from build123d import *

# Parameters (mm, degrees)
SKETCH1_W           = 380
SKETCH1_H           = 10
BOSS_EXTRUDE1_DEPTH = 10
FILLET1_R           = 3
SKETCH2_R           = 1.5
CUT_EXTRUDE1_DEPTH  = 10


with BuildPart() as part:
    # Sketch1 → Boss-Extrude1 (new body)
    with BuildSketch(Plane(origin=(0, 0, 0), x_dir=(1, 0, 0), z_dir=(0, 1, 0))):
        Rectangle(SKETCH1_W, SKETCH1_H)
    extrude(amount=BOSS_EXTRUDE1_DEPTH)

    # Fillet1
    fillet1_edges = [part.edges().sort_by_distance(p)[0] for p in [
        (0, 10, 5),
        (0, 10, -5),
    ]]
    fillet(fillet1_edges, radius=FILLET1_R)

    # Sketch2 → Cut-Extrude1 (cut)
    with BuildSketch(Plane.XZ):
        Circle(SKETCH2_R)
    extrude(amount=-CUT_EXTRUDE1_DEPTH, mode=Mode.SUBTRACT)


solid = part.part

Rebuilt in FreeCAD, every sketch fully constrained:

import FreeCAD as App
import Part
import Sketcher

V = App.Vector


def edges_at(feature, points):
    """Names of the edges that pass closest to the given points."""
    edges = feature.Shape.Edges
    near = lambda p: min(range(len(edges)), key=lambda i: edges[i].distToShape(Part.Vertex(*p))[0])
    return sorted({f"Edge{near(p) + 1}" for p in points})


def add_polygon(sketch, points):
    """Adds a closed chain of lines whose ends are joined by coincident constraints."""
    first, n = sketch.GeometryCount, len(points)
    for a, b in zip(points, points[1:] + points[:1]):
        sketch.addGeometry(Part.LineSegment(App.Vector(*a, 0), App.Vector(*b, 0)), False)
    for i in range(n):
        sketch.addConstraint(Sketcher.Constraint("Coincident", first + i, 2, first + (i + 1) % n, 1))

doc = App.newDocument("Part")
params = doc.addObject("Spreadsheet::Sheet", "Params")
for row, (alias, value) in enumerate([
    ("sketch1_width", "380 mm"),
    ("sketch1_height", "10 mm"),
    ("pad1_length", "10 mm"),
    ("fillet_radius", "3 mm"),
    ("sketch2_diameter", "3 mm"),
    ("pocket1_length", "10 mm"),
], start=1):
    params.set(f"A{row}", alias)
    params.set(f"B{row}", "=" + value)
    params.setAlias(f"B{row}", alias)

body = doc.addObject("PartDesign::Body", "Body")

# Sketch on XZ plane
sketch1 = doc.addObject("Sketcher::SketchObject", "Sketch")
body.addObject(sketch1)
sketch1.AttachmentSupport = (doc.XZ_Plane, [""])
sketch1.MapMode = "FlatFace"
add_polygon(sketch1, [(-190, -5), (-190, 5), (190, 5), (190, -5)])  # lines 0-3
sketch1.addConstraint([
    Sketcher.Constraint("Vertical", 0),
    Sketcher.Constraint("Horizontal", 1),
    Sketcher.Constraint("Vertical", 2),
    Sketcher.Constraint("Horizontal", 3),
    Sketcher.Constraint("Symmetric", 0, 2, 2, 2, -1, 1),
    Sketcher.Constraint("DistanceX", 1, 1, 1, 2, 380.0),
    Sketcher.Constraint("DistanceY", 0, 1, 0, 2, 10.0),
])
sketch1.setExpression("Constraints[9]", "Params.sketch1_width")
sketch1.setExpression("Constraints[10]", "Params.sketch1_height")
pad1 = doc.addObject("PartDesign::Pad", "Pad")
body.addObject(pad1)
pad1.Profile = sketch1
pad1.setExpression("Length", "Params.pad1_length")
pad1.Reversed = True
doc.recompute()

fillet = doc.addObject("PartDesign::Fillet", "Fillet")
body.addObject(fillet)
fillet.Base = (pad1, edges_at(pad1, [(0, 10, 5), (0, 10, -5)]))
fillet.setExpression("Radius", "Params.fillet_radius")

# Sketch on XZ plane
sketch2 = doc.addObject("Sketcher::SketchObject", "Sketch001")
body.addObject(sketch2)
sketch2.AttachmentSupport = (doc.XZ_Plane, [""])
sketch2.MapMode = "FlatFace"
sketch2.addGeometry(Part.Circle(V(0, 0, 0), V(0, 0, 1), 1.5), False)
sketch2.addConstraint([
    Sketcher.Constraint("Coincident", 0, 3, -1, 1),
    Sketcher.Constraint("Diameter", 0, 3.0),
])
sketch2.setExpression("Constraints[1]", "Params.sketch2_diameter")
pocket1 = doc.addObject("PartDesign::Pocket", "Pocket")
body.addObject(pocket1)
pocket1.Profile = sketch2
pocket1.setExpression("Length", "Params.pocket1_length")

doc.recompute()
